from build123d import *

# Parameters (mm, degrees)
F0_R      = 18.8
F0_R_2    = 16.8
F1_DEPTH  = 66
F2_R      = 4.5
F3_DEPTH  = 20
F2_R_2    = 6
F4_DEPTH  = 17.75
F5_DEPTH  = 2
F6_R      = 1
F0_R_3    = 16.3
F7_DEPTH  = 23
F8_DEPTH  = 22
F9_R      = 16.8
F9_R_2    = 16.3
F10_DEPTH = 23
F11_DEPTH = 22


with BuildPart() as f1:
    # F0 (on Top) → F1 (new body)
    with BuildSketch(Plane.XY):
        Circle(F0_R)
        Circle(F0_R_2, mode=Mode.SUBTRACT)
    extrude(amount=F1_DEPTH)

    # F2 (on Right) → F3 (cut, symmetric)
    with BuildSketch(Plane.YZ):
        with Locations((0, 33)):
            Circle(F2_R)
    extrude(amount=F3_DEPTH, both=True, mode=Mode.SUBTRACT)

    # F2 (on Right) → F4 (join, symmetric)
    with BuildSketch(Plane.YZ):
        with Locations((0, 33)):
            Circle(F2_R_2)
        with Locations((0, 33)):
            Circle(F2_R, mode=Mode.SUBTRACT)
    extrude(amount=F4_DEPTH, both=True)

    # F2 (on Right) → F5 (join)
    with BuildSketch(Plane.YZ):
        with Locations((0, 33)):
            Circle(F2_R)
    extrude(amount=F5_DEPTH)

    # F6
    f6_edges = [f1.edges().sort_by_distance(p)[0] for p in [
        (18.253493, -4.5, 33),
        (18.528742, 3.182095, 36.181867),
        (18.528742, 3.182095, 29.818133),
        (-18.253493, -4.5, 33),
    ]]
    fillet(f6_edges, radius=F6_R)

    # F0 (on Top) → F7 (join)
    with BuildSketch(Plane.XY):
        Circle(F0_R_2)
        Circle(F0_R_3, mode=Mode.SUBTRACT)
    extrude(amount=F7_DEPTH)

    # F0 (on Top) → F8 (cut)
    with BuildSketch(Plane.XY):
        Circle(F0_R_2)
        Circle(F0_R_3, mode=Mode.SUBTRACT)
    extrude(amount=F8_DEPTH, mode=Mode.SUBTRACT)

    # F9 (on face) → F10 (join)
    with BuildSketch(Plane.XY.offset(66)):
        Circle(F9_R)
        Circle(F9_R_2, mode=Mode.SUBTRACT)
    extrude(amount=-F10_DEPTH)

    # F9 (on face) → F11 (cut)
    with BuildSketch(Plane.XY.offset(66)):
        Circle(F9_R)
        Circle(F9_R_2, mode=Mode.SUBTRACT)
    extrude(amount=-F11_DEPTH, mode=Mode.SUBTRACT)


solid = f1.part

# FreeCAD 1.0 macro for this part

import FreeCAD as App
import Part
import Sketcher
from FreeCAD import Vector
Q = App.Units.Quantity


def edges_at(feature, points):
    """Names of the edges that pass closest to the given points."""
    edges = feature.Shape.Edges
    near = lambda p: min(range(len(edges)), key=lambda i: edges[i].distToShape(Part.Vertex(*p))[0])
    return sorted({f"Edge{near(p) + 1}" for p in points})

doc = App.newDocument("Part")
body = doc.addObject("PartDesign::Body", "Body")

sketch1 = doc.addObject("Sketcher::SketchObject", "Sketch")
body.addObject(sketch1)
sketch1.AttachmentSupport = (doc.XY_Plane, [""])
sketch1.MapMode = "FlatFace"
sketch1.addGeometry([
    Part.Circle(Vector(0, 0, 0), Vector(0, 0, 1), 18.8),
    Part.Circle(Vector(0, 0, 0), Vector(0, 0, 1), 16.8),
], False)
sketch1.addConstraint([
    Sketcher.Constraint("Coincident", 0, 3, -1, 1),
    Sketcher.Constraint("Coincident", 1, 3, -1, 1),
    Sketcher.Constraint("Diameter", 0, Q("37.6 mm")),
    Sketcher.Constraint("Diameter", 1, Q("33.6 mm")),
])
pad1 = doc.addObject("PartDesign::Pad", "Pad")
body.addObject(pad1)
pad1.Profile = sketch1
pad1.Length = 66

sketch2 = doc.addObject("Sketcher::SketchObject", "Sketch001")
body.addObject(sketch2)
sketch2.AttachmentSupport = (doc.YZ_Plane, [""])
sketch2.MapMode = "FlatFace"
sketch2.addGeometry(Part.Circle(Vector(0, 33, 0), Vector(0, 0, 1), 4.5), False)
sketch2.addConstraint([
    Sketcher.Constraint("PointOnObject", 0, 3, -2),
    Sketcher.Constraint("Diameter", 0, Q("9 mm")),
    Sketcher.Constraint("DistanceY", -1, 1, 0, 3, Q("33 mm")),
])
pocket1 = doc.addObject("PartDesign::Pocket", "Pocket")
body.addObject(pocket1)
pocket1.Profile = sketch2
pocket1.Length = 40
pocket1.Midplane = True

sketch3 = doc.addObject("Sketcher::SketchObject", "Sketch002")
body.addObject(sketch3)
sketch3.AttachmentSupport = (doc.YZ_Plane, [""])
sketch3.MapMode = "FlatFace"
sketch3.addGeometry([
    Part.Circle(Vector(0, 33, 0), Vector(0, 0, 1), 6),
    Part.Circle(Vector(0, 33, 0), Vector(0, 0, 1), 4.5),
], False)
sketch3.addConstraint([
    Sketcher.Constraint("Coincident", 1, 3, 0, 3),
    Sketcher.Constraint("PointOnObject", 0, 3, -2),
    Sketcher.Constraint("Diameter", 0, Q("12 mm")),
    Sketcher.Constraint("Diameter", 1, Q("9 mm")),
    Sketcher.Constraint("DistanceY", -1, 1, 0, 3, Q("33 mm")),
])
pad2 = doc.addObject("PartDesign::Pad", "Pad001")
body.addObject(pad2)
pad2.Profile = sketch3
pad2.Length = 35.5
pad2.Midplane = True

sketch4 = doc.addObject("Sketcher::SketchObject", "Sketch003")
body.addObject(sketch4)
sketch4.AttachmentSupport = (doc.YZ_Plane, [""])
sketch4.MapMode = "FlatFace"
sketch4.addGeometry(Part.Circle(Vector(0, 33, 0), Vector(0, 0, 1), 4.5), False)
sketch4.addConstraint([
    Sketcher.Constraint("PointOnObject", 0, 3, -2),
    Sketcher.Constraint("Diameter", 0, Q("9 mm")),
    Sketcher.Constraint("DistanceY", -1, 1, 0, 3, Q("33 mm")),
])
pad3 = doc.addObject("PartDesign::Pad", "Pad002")
body.addObject(pad3)
pad3.Profile = sketch4
pad3.Length = 2
doc.recompute()

fillet = doc.addObject("PartDesign::Fillet", "Fillet")
body.addObject(fillet)
fillet.Base = (pad3, edges_at(pad3, [
    (18.253, -4.5, 33),
    (18.529, 3.182, 36.182),
    (18.529, 3.182, 29.818),
    (-18.253, -4.5, 33),
]))
fillet.Radius = 1

sketch5 = doc.addObject("Sketcher::SketchObject", "Sketch004")
body.addObject(sketch5)
sketch5.AttachmentSupport = (doc.XY_Plane, [""])
sketch5.MapMode = "FlatFace"
sketch5.addGeometry([
    Part.Circle(Vector(0, 0, 0), Vector(0, 0, 1), 16.8),
    Part.Circle(Vector(0, 0, 0), Vector(0, 0, 1), 16.3),
], False)
sketch5.addConstraint([
    Sketcher.Constraint("Coincident", 0, 3, -1, 1),
    Sketcher.Constraint("Coincident", 1, 3, -1, 1),
    Sketcher.Constraint("Diameter", 0, Q("33.6 mm")),
    Sketcher.Constraint("Diameter", 1, Q("32.6 mm")),
])
pad4 = doc.addObject("PartDesign::Pad", "Pad003")
body.addObject(pad4)
pad4.Profile = sketch5
pad4.Length = 23

sketch6 = doc.addObject("Sketcher::SketchObject", "Sketch005")
body.addObject(sketch6)
sketch6.AttachmentSupport = (doc.XY_Plane, [""])
sketch6.MapMode = "FlatFace"
sketch6.addGeometry([
    Part.Circle(Vector(0, 0, 0), Vector(0, 0, 1), 16.8),
    Part.Circle(Vector(0, 0, 0), Vector(0, 0, 1), 16.3),
], False)
sketch6.addConstraint([
    Sketcher.Constraint("Coincident", 0, 3, -1, 1),
    Sketcher.Constraint("Coincident", 1, 3, -1, 1),
    Sketcher.Constraint("Diameter", 0, Q("33.6 mm")),
    Sketcher.Constraint("Diameter", 1, Q("32.6 mm")),
])
pocket2 = doc.addObject("PartDesign::Pocket", "Pocket001")
body.addObject(pocket2)
pocket2.Profile = sketch6
pocket2.Length = 22
pocket2.Reversed = True

sketch7 = doc.addObject("Sketcher::SketchObject", "Sketch006")
body.addObject(sketch7)
sketch7.AttachmentSupport = (doc.XY_Plane, [""])
sketch7.MapMode = "FlatFace"
sketch7.AttachmentOffset = App.Placement(Vector(0, 0, 66), App.Rotation())
sketch7.addGeometry([
    Part.Circle(Vector(0, 0, 0), Vector(0, 0, 1), 16.8),
    Part.Circle(Vector(0, 0, 0), Vector(0, 0, 1), 16.3),
], False)
sketch7.addConstraint([
    Sketcher.Constraint("Coincident", 0, 3, -1, 1),
    Sketcher.Constraint("Coincident", 1, 3, -1, 1),
    Sketcher.Constraint("Diameter", 0, Q("33.6 mm")),
    Sketcher.Constraint("Diameter", 1, Q("32.6 mm")),
])
pad5 = doc.addObject("PartDesign::Pad", "Pad004")
body.addObject(pad5)
pad5.Profile = sketch7
pad5.Length = 23
pad5.Reversed = True

sketch8 = doc.addObject("Sketcher::SketchObject", "Sketch007")
body.addObject(sketch8)
sketch8.AttachmentSupport = (doc.XY_Plane, [""])
sketch8.MapMode = "FlatFace"
sketch8.AttachmentOffset = App.Placement(Vector(0, 0, 66), App.Rotation())
sketch8.addGeometry([
    Part.Circle(Vector(0, 0, 0), Vector(0, 0, 1), 16.8),
    Part.Circle(Vector(0, 0, 0), Vector(0, 0, 1), 16.3),
], False)
sketch8.addConstraint([
    Sketcher.Constraint("Coincident", 0, 3, -1, 1),
    Sketcher.Constraint("Coincident", 1, 3, -1, 1),
    Sketcher.Constraint("Diameter", 0, Q("33.6 mm")),
    Sketcher.Constraint("Diameter", 1, Q("32.6 mm")),
])
pocket3 = doc.addObject("PartDesign::Pocket", "Pocket002")
body.addObject(pocket3)
pocket3.Profile = sketch8
pocket3.Length = 22

doc.recompute()
